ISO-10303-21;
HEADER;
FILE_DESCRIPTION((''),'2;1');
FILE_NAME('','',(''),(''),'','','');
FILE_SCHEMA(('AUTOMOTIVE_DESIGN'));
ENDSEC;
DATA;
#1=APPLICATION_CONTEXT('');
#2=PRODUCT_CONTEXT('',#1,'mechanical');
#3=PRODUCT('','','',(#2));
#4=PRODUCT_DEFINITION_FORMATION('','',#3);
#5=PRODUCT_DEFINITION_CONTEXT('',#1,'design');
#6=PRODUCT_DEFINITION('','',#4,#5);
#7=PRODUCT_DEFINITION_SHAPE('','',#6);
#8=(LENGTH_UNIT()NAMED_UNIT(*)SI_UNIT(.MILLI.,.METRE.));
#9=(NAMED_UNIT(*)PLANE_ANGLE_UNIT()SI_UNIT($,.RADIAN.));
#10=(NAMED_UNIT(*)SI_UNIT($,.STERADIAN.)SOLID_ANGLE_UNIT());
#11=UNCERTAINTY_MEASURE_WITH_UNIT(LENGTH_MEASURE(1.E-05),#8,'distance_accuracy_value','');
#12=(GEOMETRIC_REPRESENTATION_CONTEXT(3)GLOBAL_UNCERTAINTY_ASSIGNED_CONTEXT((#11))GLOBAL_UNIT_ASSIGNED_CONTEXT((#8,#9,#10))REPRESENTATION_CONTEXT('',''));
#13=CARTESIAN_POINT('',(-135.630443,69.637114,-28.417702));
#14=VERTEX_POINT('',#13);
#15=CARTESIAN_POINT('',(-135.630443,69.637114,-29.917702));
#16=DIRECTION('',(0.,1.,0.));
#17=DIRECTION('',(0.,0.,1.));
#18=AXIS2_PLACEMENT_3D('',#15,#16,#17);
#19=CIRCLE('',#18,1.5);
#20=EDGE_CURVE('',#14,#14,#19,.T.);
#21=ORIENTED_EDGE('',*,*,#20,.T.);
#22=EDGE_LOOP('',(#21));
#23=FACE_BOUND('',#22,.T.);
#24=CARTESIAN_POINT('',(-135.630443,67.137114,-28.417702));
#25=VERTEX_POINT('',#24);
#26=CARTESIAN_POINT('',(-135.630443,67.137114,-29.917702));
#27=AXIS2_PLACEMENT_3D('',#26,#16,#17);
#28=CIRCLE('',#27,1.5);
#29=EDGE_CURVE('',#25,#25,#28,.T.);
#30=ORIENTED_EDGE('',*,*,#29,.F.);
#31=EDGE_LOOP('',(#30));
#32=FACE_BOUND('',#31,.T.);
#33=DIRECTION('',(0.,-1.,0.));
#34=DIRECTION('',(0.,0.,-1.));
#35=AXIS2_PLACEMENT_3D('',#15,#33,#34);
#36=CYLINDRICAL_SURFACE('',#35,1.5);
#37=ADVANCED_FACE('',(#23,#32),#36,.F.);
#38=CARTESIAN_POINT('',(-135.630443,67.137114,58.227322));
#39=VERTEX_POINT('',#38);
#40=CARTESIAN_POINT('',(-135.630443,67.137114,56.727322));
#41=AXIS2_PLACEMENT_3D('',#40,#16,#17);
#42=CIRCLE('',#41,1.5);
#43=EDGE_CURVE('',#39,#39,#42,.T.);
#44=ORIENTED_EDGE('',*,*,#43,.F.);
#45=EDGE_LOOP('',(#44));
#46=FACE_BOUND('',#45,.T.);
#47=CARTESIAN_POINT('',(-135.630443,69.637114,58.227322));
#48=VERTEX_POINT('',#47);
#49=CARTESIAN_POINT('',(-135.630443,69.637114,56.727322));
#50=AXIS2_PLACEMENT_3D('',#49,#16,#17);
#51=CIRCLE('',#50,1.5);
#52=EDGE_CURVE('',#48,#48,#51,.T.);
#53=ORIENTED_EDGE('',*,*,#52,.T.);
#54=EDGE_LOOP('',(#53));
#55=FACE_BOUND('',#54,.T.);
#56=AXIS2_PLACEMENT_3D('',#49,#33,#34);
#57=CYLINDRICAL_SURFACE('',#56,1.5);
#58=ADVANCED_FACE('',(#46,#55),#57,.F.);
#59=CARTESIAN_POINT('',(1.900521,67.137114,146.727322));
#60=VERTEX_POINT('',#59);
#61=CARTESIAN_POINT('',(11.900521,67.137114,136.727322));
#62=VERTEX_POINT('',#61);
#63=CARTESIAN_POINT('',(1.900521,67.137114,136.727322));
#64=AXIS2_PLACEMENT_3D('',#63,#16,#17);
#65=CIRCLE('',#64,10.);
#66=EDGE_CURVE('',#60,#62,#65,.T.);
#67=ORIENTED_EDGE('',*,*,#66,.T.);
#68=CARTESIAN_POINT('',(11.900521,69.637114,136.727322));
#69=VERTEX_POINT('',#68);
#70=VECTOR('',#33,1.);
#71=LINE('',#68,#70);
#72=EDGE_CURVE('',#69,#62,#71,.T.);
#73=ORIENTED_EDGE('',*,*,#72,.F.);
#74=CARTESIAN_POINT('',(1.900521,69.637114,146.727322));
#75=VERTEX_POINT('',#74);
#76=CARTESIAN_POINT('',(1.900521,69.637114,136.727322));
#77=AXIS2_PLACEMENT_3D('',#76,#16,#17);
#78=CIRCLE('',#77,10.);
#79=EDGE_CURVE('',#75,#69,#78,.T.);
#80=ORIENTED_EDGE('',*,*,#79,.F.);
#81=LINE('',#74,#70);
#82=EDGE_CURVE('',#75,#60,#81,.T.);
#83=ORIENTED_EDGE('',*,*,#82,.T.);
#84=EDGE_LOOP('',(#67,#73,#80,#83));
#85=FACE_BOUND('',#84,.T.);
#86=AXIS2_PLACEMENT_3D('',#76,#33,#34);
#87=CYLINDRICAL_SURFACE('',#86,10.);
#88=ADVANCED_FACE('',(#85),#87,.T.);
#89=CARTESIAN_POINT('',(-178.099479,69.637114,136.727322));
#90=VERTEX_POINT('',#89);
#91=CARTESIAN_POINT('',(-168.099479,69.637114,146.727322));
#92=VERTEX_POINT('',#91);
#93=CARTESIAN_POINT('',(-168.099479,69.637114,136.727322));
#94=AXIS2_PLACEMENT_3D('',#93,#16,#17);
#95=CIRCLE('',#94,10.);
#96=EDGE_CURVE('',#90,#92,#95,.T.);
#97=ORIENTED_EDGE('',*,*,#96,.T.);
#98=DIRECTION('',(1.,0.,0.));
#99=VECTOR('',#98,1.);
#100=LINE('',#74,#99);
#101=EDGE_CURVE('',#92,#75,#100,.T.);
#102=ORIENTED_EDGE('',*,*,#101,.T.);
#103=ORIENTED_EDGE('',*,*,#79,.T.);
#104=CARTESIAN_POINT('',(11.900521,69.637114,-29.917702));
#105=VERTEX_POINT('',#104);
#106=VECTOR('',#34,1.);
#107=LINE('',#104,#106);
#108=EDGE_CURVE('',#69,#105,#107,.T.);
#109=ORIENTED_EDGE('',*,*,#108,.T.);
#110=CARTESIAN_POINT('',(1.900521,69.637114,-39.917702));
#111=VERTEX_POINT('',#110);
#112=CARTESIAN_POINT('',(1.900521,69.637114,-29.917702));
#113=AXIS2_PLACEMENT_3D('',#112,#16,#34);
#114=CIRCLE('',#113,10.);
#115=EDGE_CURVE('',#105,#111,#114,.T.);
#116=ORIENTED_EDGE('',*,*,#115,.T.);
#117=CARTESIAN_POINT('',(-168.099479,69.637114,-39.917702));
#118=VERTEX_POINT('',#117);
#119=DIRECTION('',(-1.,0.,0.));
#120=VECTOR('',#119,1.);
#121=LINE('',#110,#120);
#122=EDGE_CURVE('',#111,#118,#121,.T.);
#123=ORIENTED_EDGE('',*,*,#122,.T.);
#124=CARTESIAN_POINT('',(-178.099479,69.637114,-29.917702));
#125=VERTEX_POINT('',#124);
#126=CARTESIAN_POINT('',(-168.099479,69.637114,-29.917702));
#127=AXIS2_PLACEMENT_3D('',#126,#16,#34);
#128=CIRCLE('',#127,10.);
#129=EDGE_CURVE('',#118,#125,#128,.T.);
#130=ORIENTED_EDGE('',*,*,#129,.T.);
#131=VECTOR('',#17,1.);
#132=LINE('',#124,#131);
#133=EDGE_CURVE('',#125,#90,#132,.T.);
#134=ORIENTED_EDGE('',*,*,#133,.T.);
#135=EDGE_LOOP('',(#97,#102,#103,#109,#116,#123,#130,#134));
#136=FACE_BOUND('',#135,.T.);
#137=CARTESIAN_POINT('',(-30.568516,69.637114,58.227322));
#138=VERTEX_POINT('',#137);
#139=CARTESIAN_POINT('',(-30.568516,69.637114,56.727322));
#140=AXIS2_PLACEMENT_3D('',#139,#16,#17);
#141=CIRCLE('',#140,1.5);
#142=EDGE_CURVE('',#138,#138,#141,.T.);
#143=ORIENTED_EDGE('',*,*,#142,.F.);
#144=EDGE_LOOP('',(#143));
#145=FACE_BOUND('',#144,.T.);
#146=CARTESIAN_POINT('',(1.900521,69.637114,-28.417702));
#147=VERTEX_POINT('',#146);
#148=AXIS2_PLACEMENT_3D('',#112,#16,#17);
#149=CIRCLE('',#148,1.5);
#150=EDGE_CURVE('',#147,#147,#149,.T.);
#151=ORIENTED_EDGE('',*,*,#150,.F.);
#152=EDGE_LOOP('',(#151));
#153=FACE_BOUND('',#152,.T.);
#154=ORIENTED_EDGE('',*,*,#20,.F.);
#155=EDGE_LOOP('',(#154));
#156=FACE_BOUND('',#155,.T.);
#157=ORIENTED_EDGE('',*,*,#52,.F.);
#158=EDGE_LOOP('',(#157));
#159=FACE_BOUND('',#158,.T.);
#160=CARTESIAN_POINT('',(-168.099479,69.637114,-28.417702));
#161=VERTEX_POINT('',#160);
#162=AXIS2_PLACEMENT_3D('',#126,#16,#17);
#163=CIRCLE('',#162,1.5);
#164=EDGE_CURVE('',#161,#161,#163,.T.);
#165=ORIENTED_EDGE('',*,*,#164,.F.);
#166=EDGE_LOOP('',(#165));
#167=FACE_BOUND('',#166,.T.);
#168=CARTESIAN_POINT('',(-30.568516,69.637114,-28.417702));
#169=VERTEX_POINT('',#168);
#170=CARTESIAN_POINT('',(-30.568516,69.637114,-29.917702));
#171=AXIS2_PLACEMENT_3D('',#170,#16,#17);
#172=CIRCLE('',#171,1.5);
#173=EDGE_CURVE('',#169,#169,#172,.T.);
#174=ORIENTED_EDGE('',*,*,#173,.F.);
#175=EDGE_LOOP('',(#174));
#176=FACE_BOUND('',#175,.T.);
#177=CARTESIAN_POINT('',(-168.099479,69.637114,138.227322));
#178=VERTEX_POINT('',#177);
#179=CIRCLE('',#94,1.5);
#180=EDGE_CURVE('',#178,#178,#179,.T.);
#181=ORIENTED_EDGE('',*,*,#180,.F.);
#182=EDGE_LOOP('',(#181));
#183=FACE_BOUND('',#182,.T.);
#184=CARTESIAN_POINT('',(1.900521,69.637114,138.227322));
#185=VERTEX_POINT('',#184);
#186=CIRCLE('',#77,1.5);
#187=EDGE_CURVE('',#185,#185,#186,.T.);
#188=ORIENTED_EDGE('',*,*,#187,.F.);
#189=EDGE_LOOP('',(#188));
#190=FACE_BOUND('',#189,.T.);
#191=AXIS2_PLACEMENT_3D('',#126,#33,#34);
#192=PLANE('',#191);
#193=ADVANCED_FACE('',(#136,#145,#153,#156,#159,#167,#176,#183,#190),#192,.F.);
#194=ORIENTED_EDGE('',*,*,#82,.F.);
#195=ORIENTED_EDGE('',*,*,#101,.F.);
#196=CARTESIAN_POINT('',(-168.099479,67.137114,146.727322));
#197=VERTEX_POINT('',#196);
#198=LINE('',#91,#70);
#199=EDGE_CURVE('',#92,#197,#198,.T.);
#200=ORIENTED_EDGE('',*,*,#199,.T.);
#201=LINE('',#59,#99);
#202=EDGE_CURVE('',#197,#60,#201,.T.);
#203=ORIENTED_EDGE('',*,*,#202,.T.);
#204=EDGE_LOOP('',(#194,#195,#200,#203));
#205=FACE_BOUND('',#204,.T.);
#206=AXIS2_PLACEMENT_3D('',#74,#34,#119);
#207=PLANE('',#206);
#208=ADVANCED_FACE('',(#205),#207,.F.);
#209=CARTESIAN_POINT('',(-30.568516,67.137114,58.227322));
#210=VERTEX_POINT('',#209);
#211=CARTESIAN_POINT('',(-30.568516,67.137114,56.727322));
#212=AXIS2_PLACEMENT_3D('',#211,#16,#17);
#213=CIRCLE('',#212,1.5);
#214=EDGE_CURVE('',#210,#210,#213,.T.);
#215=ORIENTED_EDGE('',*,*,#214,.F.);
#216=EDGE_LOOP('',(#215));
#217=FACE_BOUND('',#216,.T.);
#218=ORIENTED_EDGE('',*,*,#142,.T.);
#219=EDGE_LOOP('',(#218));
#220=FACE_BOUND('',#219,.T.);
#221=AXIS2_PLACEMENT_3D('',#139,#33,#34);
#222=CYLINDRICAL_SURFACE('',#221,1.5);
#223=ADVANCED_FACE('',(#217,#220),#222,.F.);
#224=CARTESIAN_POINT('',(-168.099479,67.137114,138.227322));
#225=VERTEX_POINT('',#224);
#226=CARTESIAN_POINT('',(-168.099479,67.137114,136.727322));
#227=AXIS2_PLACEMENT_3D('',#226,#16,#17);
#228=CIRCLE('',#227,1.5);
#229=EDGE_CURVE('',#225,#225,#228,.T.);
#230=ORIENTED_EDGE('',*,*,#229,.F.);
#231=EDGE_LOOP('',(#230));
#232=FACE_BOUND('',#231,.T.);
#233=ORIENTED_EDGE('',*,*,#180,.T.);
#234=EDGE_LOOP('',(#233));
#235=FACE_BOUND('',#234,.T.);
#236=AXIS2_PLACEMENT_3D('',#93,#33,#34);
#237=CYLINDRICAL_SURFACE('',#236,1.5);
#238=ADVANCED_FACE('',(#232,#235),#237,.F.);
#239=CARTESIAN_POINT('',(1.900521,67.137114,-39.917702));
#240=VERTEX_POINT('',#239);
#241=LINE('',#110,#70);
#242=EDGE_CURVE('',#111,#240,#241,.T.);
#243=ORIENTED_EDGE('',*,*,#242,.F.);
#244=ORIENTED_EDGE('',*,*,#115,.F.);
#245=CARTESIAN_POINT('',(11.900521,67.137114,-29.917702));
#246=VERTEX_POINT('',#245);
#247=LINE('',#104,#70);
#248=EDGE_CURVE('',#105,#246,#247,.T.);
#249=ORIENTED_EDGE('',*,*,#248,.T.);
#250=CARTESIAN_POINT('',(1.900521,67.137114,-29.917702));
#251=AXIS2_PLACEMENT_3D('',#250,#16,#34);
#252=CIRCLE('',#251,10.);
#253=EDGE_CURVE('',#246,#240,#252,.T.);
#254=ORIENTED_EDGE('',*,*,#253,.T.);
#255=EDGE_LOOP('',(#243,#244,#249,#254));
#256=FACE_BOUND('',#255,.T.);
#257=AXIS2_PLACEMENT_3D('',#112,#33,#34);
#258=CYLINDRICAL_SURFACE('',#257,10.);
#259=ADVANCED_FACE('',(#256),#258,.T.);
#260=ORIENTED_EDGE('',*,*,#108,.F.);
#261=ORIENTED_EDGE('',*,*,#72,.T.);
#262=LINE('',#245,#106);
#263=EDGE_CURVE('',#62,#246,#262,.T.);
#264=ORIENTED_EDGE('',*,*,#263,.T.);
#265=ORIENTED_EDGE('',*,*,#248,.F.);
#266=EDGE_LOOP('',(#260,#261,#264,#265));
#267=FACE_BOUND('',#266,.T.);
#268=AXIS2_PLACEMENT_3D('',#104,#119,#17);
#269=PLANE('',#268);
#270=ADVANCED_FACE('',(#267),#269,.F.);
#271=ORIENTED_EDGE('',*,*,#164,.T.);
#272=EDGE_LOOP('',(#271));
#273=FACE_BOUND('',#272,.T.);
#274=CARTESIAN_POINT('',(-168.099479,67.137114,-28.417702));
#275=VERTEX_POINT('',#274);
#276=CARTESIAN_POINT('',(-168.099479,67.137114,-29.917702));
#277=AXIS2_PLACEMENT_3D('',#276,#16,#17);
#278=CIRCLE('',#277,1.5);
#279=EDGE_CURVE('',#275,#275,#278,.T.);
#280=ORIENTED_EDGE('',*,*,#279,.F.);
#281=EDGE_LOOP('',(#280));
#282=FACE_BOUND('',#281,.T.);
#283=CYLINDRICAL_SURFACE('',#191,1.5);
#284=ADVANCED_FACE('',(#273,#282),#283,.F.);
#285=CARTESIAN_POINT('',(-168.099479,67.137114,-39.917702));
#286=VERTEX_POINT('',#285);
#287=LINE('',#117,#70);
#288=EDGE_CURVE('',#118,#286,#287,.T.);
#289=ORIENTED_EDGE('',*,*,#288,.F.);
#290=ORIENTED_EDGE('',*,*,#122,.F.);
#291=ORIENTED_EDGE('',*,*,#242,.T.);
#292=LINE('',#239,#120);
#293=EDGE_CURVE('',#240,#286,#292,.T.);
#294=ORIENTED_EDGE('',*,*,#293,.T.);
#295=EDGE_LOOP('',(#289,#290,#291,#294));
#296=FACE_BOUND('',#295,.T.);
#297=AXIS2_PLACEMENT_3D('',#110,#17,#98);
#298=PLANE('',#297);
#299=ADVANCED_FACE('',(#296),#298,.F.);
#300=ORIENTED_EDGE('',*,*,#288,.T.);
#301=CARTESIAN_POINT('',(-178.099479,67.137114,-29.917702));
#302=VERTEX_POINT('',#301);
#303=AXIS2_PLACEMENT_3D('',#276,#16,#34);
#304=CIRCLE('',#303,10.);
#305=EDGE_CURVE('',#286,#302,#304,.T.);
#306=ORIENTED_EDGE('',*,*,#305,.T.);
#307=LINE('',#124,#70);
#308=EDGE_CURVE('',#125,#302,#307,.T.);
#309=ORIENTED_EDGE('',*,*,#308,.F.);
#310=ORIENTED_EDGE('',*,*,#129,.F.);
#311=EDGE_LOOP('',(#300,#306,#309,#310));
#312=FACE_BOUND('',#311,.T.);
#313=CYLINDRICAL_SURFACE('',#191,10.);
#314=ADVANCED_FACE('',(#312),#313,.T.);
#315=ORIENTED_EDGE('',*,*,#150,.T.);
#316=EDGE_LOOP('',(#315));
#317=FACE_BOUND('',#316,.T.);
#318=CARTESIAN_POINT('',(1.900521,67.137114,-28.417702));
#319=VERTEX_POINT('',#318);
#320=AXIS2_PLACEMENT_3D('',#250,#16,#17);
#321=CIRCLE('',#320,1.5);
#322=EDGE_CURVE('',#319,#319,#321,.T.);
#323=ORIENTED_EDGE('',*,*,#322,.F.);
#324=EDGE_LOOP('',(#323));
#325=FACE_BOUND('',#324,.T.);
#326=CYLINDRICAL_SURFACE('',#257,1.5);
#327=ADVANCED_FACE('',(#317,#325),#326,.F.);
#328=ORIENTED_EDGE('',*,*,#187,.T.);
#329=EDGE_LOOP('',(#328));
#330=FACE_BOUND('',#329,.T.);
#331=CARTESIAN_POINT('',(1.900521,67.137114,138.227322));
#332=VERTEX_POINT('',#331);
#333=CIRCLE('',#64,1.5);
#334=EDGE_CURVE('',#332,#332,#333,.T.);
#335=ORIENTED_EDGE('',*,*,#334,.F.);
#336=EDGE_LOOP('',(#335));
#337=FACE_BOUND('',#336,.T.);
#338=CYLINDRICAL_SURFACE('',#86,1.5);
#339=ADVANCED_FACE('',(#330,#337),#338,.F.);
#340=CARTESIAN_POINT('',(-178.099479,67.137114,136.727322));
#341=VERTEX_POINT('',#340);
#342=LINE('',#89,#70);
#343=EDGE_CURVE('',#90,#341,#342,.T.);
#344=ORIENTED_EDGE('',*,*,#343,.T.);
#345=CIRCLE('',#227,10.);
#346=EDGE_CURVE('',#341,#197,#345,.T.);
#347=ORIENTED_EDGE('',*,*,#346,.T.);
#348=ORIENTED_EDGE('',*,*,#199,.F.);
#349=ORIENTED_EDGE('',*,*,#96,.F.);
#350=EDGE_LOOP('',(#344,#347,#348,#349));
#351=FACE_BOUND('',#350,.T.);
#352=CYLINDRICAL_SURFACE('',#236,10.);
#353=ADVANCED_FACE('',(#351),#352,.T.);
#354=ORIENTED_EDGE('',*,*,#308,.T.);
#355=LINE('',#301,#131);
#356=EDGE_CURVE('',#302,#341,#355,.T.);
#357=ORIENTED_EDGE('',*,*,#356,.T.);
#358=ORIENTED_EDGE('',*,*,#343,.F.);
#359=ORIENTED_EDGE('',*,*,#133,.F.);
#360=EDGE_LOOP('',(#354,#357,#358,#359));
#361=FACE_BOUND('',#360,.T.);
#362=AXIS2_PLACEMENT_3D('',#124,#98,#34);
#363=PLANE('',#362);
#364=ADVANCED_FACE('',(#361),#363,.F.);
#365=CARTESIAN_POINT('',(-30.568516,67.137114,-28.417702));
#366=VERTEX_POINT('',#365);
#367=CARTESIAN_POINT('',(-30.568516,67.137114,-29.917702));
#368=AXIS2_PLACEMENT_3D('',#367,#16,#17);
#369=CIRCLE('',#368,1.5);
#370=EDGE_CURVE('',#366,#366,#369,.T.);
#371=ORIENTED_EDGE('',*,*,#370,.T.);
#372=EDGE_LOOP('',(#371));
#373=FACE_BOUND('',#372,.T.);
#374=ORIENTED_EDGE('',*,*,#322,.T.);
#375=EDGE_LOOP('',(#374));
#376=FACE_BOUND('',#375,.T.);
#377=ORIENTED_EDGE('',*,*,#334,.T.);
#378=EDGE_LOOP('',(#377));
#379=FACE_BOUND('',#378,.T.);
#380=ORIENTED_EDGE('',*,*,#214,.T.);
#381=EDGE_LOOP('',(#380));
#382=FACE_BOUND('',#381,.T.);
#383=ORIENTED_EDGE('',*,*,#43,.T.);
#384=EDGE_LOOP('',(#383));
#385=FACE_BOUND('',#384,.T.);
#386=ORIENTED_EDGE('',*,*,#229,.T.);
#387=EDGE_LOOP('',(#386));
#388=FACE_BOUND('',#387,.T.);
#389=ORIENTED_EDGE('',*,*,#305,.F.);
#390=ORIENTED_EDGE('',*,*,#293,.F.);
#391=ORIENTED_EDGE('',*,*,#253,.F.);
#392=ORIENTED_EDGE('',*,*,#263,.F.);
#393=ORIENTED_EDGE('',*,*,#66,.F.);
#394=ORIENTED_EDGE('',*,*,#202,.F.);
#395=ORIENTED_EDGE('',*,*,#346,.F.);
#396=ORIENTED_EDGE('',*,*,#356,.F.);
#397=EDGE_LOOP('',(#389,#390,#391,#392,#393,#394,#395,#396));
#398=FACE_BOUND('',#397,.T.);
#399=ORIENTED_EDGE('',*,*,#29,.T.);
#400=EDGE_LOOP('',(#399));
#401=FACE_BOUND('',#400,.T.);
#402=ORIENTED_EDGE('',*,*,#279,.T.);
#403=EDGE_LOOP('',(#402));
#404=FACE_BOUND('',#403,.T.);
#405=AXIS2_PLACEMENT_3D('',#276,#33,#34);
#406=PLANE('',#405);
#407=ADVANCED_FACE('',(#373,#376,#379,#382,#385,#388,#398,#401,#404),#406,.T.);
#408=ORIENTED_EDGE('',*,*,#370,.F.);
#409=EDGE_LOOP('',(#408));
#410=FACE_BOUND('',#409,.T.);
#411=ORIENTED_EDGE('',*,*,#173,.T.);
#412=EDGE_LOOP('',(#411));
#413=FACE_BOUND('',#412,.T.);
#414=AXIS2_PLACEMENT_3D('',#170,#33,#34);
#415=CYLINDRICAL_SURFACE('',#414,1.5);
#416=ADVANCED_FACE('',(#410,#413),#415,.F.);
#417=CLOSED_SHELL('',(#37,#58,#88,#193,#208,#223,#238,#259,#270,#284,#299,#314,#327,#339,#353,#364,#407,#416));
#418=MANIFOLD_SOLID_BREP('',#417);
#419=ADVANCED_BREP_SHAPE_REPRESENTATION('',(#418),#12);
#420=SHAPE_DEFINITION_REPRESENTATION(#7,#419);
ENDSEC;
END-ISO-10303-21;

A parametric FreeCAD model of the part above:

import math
import FreeCAD as App
import Part
import Sketcher

doc = App.newDocument("Part")
body = doc.addObject("PartDesign::Body", "Body")

sketch1 = body.newObject("Sketcher::SketchObject", "Sketch")
sketch1.AttachmentSupport = (doc.getObject("XZ_Plane"), [""])
sketch1.MapMode = "FlatFace"
sketch1.AttachmentOffset = App.Placement(App.Vector(0, 0, -67.137114), App.Rotation())
sketch1.addGeometry(Part.LineSegment(App.Vector(1.900521, -39.917702, 0), App.Vector(-168.099479, -39.917702, 0)), False)
sketch1.addGeometry(Part.ArcOfCircle(Part.Circle(App.Vector(-168.099479, -29.917702, 0), App.Vector(0, 0, 1), 10), math.radians(180), math.radians(270)), False)
sketch1.addGeometry(Part.LineSegment(App.Vector(-178.099479, -29.917702, 0), App.Vector(-178.099479, 136.727322, 0)), False)
sketch1.addGeometry(Part.ArcOfCircle(Part.Circle(App.Vector(-168.099479, 136.727322, 0), App.Vector(0, 0, 1), 10), math.radians(90), math.radians(180)), False)
sketch1.addGeometry(Part.LineSegment(App.Vector(-168.099479, 146.727322, 0), App.Vector(1.900521, 146.727322, 0)), False)
sketch1.addGeometry(Part.ArcOfCircle(Part.Circle(App.Vector(1.900521, 136.727322, 0), App.Vector(0, 0, 1), 10), math.radians(0), math.radians(90)), False)
sketch1.addGeometry(Part.LineSegment(App.Vector(11.900521, 136.727322, 0), App.Vector(11.900521, -29.917702, 0)), False)
sketch1.addGeometry(Part.ArcOfCircle(Part.Circle(App.Vector(1.900521, -29.917702, 0), App.Vector(0, 0, 1), 10), math.radians(-90), math.radians(0)), False)
sketch1.addGeometry(Part.Circle(App.Vector(-168.099479, 136.727322, 0), App.Vector(0, 0, 1), 1.5), False)
sketch1.addGeometry(Part.Circle(App.Vector(-135.630443, 56.727322, 0), App.Vector(0, 0, 1), 1.5), False)
sketch1.addGeometry(Part.Circle(App.Vector(1.900521, 136.727322, 0), App.Vector(0, 0, 1), 1.5), False)
sketch1.addGeometry(Part.Circle(App.Vector(-30.568516, 56.727322, 0), App.Vector(0, 0, 1), 1.5), False)
sketch1.addGeometry(Part.Circle(App.Vector(-168.099479, -29.917702, 0), App.Vector(0, 0, 1), 1.5), False)
sketch1.addGeometry(Part.Circle(App.Vector(-135.630443, -29.917702, 0), App.Vector(0, 0, 1), 1.5), False)
sketch1.addGeometry(Part.Circle(App.Vector(-30.568516, -29.917702, 0), App.Vector(0, 0, 1), 1.5), False)
sketch1.addGeometry(Part.Circle(App.Vector(1.900521, -29.917702, 0), App.Vector(0, 0, 1), 1.5), False)
sketch1.addConstraint(Sketcher.Constraint("Tangent", 0, 2, 1, 2))
sketch1.addConstraint(Sketcher.Constraint("Tangent", 1, 1, 2, 1))
sketch1.addConstraint(Sketcher.Constraint("Tangent", 2, 2, 3, 2))
sketch1.addConstraint(Sketcher.Constraint("Tangent", 3, 1, 4, 1))
sketch1.addConstraint(Sketcher.Constraint("Tangent", 4, 2, 5, 2))
sketch1.addConstraint(Sketcher.Constraint("Tangent", 5, 1, 6, 1))
sketch1.addConstraint(Sketcher.Constraint("Tangent", 6, 2, 7, 2))
sketch1.addConstraint(Sketcher.Constraint("Tangent", 7, 1, 0, 1))
sketch1.addConstraint(Sketcher.Constraint("Horizontal", 0))
sketch1.addConstraint(Sketcher.Constraint("Vertical", 2))
sketch1.addConstraint(Sketcher.Constraint("Horizontal", 4))
sketch1.addConstraint(Sketcher.Constraint("Vertical", 6))
sketch1.addConstraint(Sketcher.Constraint("Coincident", 8, 3, 3, 3))
sketch1.addConstraint(Sketcher.Constraint("Coincident", 10, 3, 5, 3))
sketch1.addConstraint(Sketcher.Constraint("Coincident", 12, 3, 1, 3))
sketch1.addConstraint(Sketcher.Constraint("Coincident", 15, 3, 7, 3))
sketch1.addConstraint(Sketcher.Constraint("Equal", 1, 3))
sketch1.addConstraint(Sketcher.Constraint("Equal", 3, 5))
sketch1.addConstraint(Sketcher.Constraint("Equal", 5, 7))
sketch1.addConstraint(Sketcher.Constraint("Equal", 8, 9))
sketch1.addConstraint(Sketcher.Constraint("Equal", 9, 10))
sketch1.addConstraint(Sketcher.Constraint("Equal", 10, 11))
sketch1.addConstraint(Sketcher.Constraint("Equal", 11, 12))
sketch1.addConstraint(Sketcher.Constraint("Equal", 12, 13))
sketch1.addConstraint(Sketcher.Constraint("Equal", 13, 14))
sketch1.addConstraint(Sketcher.Constraint("Equal", 14, 15))
sketch1.addConstraint(Sketcher.Constraint("Horizontal", 9, 3, 11, 3))
sketch1.addConstraint(Sketcher.Constraint("Horizontal", 12, 3, 13, 3))
sketch1.addConstraint(Sketcher.Constraint("Horizontal", 13, 3, 14, 3))
sketch1.addConstraint(Sketcher.Constraint("Vertical", 9, 3, 13, 3))
sketch1.addConstraint(Sketcher.Constraint("Vertical", 11, 3, 14, 3))
sketch1.addConstraint(Sketcher.Constraint("Diameter", 8, 3.0))
sketch1.addConstraint(Sketcher.Constraint("Radius", 1, 10.0))
sketch1.addConstraint(Sketcher.Constraint("DistanceX", 0, 2, 0, 1, 170.0))
sketch1.addConstraint(Sketcher.Constraint("DistanceY", 9, 3, 3, 3, 80.0))
sketch1.addConstraint(Sketcher.Constraint("DistanceY", 2, 1, 2, 2, 166.645024))
sketch1.addConstraint(Sketcher.Constraint("DistanceX", 1, 3, -1, 1, 168.099479))
sketch1.addConstraint(Sketcher.Constraint("DistanceY", -1, 1, 3, 3, 136.727322))
sketch1.addConstraint(Sketcher.Constraint("DistanceX", 9, 3, -1, 1, 135.630443))
sketch1.addConstraint(Sketcher.Constraint("DistanceX", 11, 3, -1, 1, 30.568516))
pad1 = body.newObject("PartDesign::Pad", "Pad")
pad1.Profile = sketch1
pad1.Length = 2.5
pad1.Reversed = True

doc.recompute()
